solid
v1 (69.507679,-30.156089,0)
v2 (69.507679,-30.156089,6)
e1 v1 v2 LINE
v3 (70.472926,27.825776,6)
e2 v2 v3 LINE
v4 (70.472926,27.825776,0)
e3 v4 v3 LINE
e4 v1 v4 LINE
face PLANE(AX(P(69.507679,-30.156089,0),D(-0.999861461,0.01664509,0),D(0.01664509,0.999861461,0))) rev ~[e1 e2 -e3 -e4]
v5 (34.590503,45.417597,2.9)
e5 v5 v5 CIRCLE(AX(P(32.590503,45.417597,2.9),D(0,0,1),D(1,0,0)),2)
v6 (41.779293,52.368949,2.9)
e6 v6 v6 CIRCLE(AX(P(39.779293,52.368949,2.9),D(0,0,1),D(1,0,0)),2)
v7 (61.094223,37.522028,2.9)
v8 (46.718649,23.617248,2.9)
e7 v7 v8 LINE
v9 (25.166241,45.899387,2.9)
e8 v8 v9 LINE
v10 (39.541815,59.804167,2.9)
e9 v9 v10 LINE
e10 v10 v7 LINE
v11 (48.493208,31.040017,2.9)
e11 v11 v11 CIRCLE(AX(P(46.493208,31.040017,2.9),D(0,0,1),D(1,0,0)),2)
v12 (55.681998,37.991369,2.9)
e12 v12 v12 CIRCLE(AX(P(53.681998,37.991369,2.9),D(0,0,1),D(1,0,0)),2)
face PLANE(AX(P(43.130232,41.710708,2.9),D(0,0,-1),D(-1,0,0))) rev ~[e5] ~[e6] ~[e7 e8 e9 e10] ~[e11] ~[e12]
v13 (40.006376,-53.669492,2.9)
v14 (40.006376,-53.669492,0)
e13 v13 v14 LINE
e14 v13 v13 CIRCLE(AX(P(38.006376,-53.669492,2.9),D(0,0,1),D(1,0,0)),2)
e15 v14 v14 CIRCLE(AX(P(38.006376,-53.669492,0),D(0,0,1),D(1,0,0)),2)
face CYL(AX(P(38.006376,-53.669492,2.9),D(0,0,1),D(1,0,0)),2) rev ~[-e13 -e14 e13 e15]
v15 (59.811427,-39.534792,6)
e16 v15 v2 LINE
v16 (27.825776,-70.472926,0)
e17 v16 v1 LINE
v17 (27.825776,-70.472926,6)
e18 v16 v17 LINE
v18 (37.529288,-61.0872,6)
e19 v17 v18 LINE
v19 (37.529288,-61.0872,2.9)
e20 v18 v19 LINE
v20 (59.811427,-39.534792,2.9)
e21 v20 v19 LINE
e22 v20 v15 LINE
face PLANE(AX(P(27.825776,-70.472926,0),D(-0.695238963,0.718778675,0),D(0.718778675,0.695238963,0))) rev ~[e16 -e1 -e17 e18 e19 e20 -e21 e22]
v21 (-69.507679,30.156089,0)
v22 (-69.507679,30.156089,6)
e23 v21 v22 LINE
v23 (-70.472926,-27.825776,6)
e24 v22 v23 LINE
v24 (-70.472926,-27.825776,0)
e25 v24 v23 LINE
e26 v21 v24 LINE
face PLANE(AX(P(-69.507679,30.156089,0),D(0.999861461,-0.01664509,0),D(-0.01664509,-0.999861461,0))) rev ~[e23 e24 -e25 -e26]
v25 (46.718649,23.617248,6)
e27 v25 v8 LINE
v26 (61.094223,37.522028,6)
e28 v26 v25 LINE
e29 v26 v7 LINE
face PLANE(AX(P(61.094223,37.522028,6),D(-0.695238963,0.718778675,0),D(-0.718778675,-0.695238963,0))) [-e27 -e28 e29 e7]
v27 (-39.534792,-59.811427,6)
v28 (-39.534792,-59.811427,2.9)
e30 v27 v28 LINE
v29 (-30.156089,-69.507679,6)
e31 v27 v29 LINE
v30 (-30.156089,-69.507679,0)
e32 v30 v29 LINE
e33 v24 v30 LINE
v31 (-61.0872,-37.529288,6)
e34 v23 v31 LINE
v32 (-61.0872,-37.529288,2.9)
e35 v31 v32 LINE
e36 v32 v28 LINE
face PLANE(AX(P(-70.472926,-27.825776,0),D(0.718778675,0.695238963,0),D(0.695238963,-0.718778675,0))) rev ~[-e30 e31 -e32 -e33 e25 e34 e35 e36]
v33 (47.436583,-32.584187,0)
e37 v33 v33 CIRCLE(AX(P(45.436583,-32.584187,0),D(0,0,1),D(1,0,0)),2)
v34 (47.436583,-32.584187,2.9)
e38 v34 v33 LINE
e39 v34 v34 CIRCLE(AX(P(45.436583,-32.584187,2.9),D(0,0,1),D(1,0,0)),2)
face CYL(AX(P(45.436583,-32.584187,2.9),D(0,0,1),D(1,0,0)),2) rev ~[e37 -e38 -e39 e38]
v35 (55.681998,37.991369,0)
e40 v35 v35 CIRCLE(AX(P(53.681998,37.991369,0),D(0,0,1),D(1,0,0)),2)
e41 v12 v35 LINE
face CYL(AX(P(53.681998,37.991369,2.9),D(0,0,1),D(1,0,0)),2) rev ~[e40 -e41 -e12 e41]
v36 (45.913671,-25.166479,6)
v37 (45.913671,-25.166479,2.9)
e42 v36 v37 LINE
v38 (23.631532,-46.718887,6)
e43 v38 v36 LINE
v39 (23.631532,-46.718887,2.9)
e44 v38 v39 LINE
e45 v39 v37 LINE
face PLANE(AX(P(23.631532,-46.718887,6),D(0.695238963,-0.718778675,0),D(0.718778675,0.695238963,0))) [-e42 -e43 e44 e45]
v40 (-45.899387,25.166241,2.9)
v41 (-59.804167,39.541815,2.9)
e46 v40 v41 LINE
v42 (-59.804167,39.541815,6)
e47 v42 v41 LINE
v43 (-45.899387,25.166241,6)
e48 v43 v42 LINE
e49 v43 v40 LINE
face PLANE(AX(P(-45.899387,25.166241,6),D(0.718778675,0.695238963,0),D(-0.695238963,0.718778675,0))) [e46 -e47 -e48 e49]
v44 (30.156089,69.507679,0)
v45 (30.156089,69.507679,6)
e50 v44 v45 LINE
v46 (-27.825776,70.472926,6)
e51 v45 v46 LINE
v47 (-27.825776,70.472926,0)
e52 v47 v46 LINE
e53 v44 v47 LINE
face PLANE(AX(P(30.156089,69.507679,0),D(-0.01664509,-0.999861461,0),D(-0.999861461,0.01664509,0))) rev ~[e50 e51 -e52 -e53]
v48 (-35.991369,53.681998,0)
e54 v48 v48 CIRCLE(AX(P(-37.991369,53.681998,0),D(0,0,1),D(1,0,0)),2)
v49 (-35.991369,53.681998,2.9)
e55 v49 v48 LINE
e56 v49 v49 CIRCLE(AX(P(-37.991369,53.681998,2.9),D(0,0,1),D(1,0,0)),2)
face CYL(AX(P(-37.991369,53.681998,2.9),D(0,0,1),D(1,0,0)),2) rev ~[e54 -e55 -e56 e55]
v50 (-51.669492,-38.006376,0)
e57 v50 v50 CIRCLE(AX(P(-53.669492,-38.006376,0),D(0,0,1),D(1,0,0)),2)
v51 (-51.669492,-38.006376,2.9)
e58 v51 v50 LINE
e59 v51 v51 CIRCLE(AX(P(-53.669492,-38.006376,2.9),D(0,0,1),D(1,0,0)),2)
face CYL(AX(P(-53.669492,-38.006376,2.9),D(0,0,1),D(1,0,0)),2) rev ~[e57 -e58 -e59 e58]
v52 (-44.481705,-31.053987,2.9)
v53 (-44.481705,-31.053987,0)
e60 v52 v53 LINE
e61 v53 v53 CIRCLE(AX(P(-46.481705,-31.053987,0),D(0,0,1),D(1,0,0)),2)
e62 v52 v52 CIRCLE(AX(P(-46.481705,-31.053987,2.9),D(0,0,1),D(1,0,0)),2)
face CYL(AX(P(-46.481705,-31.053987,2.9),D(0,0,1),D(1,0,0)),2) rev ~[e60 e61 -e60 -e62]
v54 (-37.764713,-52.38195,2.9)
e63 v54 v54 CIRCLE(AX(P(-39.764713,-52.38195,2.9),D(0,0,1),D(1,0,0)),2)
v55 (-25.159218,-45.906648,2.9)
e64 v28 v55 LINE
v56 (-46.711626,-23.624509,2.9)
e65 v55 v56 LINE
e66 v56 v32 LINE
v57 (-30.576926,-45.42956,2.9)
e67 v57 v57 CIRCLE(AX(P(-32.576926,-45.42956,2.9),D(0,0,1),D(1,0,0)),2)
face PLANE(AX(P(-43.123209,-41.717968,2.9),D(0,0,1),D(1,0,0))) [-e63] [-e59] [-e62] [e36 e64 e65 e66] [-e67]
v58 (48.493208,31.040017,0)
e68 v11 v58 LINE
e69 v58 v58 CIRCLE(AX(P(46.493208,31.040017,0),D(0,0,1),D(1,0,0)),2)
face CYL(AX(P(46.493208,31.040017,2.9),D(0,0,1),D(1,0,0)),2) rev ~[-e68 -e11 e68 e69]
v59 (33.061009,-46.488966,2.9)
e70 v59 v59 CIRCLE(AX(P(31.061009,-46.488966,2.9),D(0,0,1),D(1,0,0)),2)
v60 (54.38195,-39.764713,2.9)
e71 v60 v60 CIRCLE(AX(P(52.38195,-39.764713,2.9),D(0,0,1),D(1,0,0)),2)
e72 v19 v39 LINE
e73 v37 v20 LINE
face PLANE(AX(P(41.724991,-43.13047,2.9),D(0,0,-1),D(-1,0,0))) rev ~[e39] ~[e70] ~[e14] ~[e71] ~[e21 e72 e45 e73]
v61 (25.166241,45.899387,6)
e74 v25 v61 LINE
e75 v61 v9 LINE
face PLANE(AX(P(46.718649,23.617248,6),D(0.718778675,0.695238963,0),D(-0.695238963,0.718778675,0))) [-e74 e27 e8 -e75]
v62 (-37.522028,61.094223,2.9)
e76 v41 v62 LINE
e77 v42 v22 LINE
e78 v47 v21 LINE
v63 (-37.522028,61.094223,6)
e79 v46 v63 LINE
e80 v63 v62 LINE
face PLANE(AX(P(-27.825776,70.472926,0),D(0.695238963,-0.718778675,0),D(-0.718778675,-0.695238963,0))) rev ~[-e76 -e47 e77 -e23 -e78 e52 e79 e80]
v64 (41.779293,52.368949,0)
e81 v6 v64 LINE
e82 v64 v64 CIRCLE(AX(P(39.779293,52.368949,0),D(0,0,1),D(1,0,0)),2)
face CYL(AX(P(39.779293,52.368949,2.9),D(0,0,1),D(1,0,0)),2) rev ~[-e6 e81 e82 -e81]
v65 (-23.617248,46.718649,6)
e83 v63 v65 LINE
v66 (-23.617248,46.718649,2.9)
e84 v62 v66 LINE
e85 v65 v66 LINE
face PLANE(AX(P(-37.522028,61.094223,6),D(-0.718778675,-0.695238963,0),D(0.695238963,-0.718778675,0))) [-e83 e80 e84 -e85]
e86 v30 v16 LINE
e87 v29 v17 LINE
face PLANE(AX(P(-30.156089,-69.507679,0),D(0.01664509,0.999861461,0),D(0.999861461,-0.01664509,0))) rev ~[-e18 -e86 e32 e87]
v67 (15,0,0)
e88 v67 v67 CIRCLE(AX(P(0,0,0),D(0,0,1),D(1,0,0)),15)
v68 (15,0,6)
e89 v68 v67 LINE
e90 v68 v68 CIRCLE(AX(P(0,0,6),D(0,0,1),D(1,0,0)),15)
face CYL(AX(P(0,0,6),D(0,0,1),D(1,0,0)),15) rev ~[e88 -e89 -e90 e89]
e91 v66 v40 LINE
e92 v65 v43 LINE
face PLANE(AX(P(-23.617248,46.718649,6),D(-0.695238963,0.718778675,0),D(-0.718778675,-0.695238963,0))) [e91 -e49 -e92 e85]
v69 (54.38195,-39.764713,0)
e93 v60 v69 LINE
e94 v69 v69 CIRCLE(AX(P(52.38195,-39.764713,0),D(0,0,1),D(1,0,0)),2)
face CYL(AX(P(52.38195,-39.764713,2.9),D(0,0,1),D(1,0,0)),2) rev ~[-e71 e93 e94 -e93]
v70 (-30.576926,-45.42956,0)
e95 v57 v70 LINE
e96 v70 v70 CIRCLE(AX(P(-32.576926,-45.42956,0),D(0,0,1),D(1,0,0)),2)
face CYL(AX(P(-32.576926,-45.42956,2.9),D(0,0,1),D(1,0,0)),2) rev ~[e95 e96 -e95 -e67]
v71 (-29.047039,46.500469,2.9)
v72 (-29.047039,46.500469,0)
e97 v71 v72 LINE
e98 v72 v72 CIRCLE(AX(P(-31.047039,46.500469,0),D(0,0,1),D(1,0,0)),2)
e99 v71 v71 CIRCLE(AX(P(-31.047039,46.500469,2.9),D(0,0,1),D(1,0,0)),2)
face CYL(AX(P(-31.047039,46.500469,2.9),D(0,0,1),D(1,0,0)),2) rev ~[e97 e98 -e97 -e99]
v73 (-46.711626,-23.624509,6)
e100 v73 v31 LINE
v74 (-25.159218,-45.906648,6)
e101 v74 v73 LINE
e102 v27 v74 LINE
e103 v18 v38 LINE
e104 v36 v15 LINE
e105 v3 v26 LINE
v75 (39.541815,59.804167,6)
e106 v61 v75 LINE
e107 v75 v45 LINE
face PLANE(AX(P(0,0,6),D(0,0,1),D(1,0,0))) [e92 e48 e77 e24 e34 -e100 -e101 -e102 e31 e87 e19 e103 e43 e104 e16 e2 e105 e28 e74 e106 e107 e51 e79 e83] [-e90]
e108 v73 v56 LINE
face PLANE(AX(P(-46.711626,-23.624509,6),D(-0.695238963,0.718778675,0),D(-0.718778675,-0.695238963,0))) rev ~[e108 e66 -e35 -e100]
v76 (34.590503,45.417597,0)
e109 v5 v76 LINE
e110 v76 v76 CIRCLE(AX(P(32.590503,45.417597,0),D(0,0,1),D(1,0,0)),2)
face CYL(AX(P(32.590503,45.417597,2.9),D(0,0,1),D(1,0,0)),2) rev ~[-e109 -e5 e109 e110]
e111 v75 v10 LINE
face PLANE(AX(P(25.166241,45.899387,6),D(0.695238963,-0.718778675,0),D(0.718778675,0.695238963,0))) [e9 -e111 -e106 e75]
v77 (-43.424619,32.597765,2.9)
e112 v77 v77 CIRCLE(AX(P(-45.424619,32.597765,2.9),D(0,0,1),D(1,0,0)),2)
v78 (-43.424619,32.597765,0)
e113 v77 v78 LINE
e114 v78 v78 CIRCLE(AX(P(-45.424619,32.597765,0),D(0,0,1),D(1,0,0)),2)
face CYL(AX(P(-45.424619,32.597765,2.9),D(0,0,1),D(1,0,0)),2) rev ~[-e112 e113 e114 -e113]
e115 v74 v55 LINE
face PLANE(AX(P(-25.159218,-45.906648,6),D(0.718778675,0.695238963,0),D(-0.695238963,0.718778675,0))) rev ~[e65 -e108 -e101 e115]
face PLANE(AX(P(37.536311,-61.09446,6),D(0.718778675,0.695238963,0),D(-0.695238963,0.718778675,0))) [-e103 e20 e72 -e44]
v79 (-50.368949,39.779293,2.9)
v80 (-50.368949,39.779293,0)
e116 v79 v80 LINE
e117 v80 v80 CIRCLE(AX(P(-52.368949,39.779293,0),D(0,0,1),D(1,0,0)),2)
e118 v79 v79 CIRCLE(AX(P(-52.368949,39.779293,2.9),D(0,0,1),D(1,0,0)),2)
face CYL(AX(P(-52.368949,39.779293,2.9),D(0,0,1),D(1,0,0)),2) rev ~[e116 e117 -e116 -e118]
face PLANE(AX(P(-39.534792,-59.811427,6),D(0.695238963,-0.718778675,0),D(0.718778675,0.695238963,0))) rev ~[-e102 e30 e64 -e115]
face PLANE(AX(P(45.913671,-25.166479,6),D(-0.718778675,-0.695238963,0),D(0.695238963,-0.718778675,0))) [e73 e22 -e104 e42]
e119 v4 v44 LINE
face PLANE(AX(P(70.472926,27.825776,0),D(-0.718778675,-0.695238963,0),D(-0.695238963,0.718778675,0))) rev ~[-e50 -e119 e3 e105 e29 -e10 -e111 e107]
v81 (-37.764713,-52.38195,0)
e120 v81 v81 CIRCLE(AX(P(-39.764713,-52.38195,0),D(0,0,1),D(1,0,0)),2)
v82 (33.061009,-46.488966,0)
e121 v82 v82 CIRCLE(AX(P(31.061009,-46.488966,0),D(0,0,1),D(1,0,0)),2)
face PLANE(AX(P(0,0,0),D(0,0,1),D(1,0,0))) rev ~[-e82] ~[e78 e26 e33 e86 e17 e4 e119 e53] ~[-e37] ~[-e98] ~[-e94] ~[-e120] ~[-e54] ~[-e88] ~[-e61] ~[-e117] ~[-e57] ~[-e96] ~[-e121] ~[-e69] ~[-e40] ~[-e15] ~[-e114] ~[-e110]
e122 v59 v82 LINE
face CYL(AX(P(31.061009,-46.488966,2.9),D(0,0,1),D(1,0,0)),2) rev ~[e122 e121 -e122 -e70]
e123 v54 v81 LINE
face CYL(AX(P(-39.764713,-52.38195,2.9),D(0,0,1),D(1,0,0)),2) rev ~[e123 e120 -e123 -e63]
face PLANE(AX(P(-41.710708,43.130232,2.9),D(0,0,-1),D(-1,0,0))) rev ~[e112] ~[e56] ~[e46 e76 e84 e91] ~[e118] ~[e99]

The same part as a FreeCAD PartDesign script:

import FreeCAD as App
import Part
import Sketcher
from FreeCAD import Vector


def add_polygon(sketch, points):
    """Adds a closed chain of lines whose ends are joined by coincident constraints."""
    first, n = sketch.GeometryCount, len(points)
    for a, b in zip(points, points[1:] + points[:1]):
        sketch.addGeometry(Part.LineSegment(App.Vector(*a, 0), App.Vector(*b, 0)), False)
    for i in range(n):
        sketch.addConstraint(Sketcher.Constraint("Coincident", first + i, 2, first + (i + 1) % n, 1))

doc = App.newDocument("Part")
params = doc.addObject("Spreadsheet::Sheet", "Params")
for row, (alias, value) in enumerate([
    ("pad1_length", "6 mm"),
    ("sketch2_length", "31 mm"),
    ("sketch2_length2", "20 mm"),
    ("pocket1_length", "3.1 mm"),
    ("sketch3_diameter", "30 mm"),
    ("sketch4_diameter", "4 mm"),
    ("pocket3_length", "3.1 mm"),
], start=1):
    params.set(f"A{row}", alias)
    params.set(f"B{row}", "=" + value)
    params.setAlias(f"B{row}", alias)

body = doc.addObject("PartDesign::Body", "Body")

# Sketch on XY plane
sketch1 = body.newObject("Sketcher::SketchObject", "Sketch")
sketch1.AttachmentSupport = (doc.getObject("XY_Plane"), [""])
sketch1.MapMode = "FlatFace"
add_polygon(sketch1, [(70, 28), (30, 70), (-28, 70), (-70, 30), (-70, -28), (-30, -70), (28, -70), (70, -30)])  # lines 0-7
sketch1.addConstraint([
    Sketcher.Constraint("Symmetric", 0, 2, 4, 2, -1, 1),
    Sketcher.Constraint("Symmetric", 1, 2, 5, 2, -1, 1),
    Sketcher.Constraint("Symmetric", 2, 2, 6, 2, -1, 1),
    Sketcher.Constraint("Symmetric", 3, 2, 7, 2, -1, 1),
    Sketcher.Constraint("Perpendicular", 0, 2),
    Sketcher.Constraint("Perpendicular", 1, 3),
    Sketcher.Constraint("Equal", 0, 1),
    Sketcher.Constraint("Equal", 1, 2),
    Sketcher.Constraint("Equal", 2, 3),
    Sketcher.Constraint("Distance", 0, 57.989899),
    Sketcher.Constraint("DistanceY", 3, 2, 1, 2, 98.298702),
    Sketcher.Constraint("DistanceX", -1, 1, 0, 2, 30.156089),
])
pad1 = body.newObject("PartDesign::Pad", "Pad")
pad1.Profile = sketch1
pad1.setExpression("Length", "Params.pad1_length")

# Sketch on XY plane
sketch2 = body.newObject("Sketcher::SketchObject", "Sketch001")
sketch2.AttachmentSupport = (doc.getObject("XY_Plane"), [""])
sketch2.MapMode = "FlatFace"
sketch2.AttachmentOffset = App.Placement(Vector(0, 0, 6), App.Rotation())
add_polygon(sketch2, [(-61, -38), (-40, -60), (-25, -46), (-47, -24)])  # lines 0-3
add_polygon(sketch2, [(25, 46), (47, 24), (61, 38), (40, 60)])  # lines 4-7
add_polygon(sketch2, [(-38, 61), (-60, 40), (-46, 25), (-24, 47)])  # lines 8-11
add_polygon(sketch2, [(46, -25), (24, -47), (38, -61), (60, -40)])  # lines 12-15
sketch2.addConstraint([
    Sketcher.Constraint("Perpendicular", 0, 1),
    Sketcher.Constraint("Perpendicular", 1, 2),
    Sketcher.Constraint("Perpendicular", 2, 3),
    Sketcher.Constraint("Perpendicular", 3, 4),
    Sketcher.Constraint("Perpendicular", 4, 5),
    Sketcher.Constraint("Perpendicular", 5, 6),
    Sketcher.Constraint("Perpendicular", 6, 7),
    Sketcher.Constraint("Parallel", 7, 8),
    Sketcher.Constraint("Perpendicular", 8, 9),
    Sketcher.Constraint("Perpendicular", 9, 10),
    Sketcher.Constraint("Perpendicular", 10, 11),
    Sketcher.Constraint("Perpendicular", 11, 12),
    Sketcher.Constraint("Perpendicular", 12, 13),
    Sketcher.Constraint("Perpendicular", 13, 14),
    Sketcher.Constraint("Perpendicular", 14, 15),
    Sketcher.Constraint("Equal", 2, 4),
    Sketcher.Constraint("Equal", 3, 5),
    Sketcher.Constraint("Equal", 6, 8),
    Sketcher.Constraint("Equal", 7, 9),
    Sketcher.Constraint("Equal", 10, 12),
    Sketcher.Constraint("Equal", 11, 13),
    Sketcher.Constraint("Distance", 0, 31.0),
    Sketcher.Constraint("Distance", 1, 20.0),
    Sketcher.Constraint("DistanceX", 3, 2, -1, 1, 61.0872),
    Sketcher.Constraint("DistanceY", 4, 2, 10, 2, 23.101401),
    Sketcher.Constraint("DistanceY", 12, 2, 3, 2, 9.189599),
    Sketcher.Constraint("DistanceX", 4, 2, 14, 2, 13.099801),
    Sketcher.Constraint("DistanceY", 14, 2, 4, 2, 63.159301),
    Sketcher.Constraint("DistanceX", 0, 2, -1, 1, 39.534792),
    Sketcher.Constraint("DistanceY", 2, 2, -1, 1, 23.624509),
    Sketcher.Constraint("DistanceX", -1, 1, 4, 2, 46.718649),
    Sketcher.Constraint("DistanceX", 10, 2, -1, 1, 23.617248),
])
sketch2.setExpression("Constraints[37]", "Params.sketch2_length")
sketch2.setExpression("Constraints[38]", "Params.sketch2_length2")
pocket1 = body.newObject("PartDesign::Pocket", "Pocket")
pocket1.Profile = sketch2
pocket1.setExpression("Length", "Params.pocket1_length")

# Sketch on XY plane
sketch3 = body.newObject("Sketcher::SketchObject", "Sketch002")
sketch3.AttachmentSupport = (doc.getObject("XY_Plane"), [""])
sketch3.MapMode = "FlatFace"
sketch3.AttachmentOffset = App.Placement(Vector(0, 0, 6), App.Rotation())
sketch3.addGeometry(Part.Circle(Vector(0, 0, 0), Vector(0, 0, 1), 15), False)
sketch3.addConstraint([
    Sketcher.Constraint("Coincident", 0, 3, -1, 1),
    Sketcher.Constraint("Diameter", 0, 30.0),
])
sketch3.setExpression("Constraints[1]", "Params.sketch3_diameter")
pocket2 = body.newObject("PartDesign::Pocket", "Pocket001")
pocket2.Profile = sketch3
pocket2.Type = "ThroughAll"

# Sketch on XY plane
sketch4 = body.newObject("Sketcher::SketchObject", "Sketch003")
sketch4.AttachmentSupport = (doc.getObject("XY_Plane"), [""])
sketch4.MapMode = "FlatFace"
sketch4.AttachmentOffset = App.Placement(Vector(0, 0, 2.9), App.Rotation())
sketch4.addGeometry([
    Part.Circle(Vector(-46.5, -31.1, 0), Vector(0, 0, 1), 2),  # 0
    Part.Circle(Vector(-53.7, -38, 0), Vector(0, 0, 1), 2),  # 1
    Part.Circle(Vector(-39.8, -52.4, 0), Vector(0, 0, 1), 2),  # 2
    Part.Circle(Vector(-32.6, -45.4, 0), Vector(0, 0, 1), 2),  # 3
    Part.Circle(Vector(39.8, 52.4, 0), Vector(0, 0, 1), 2),  # 4
    Part.Circle(Vector(32.6, 45.4, 0), Vector(0, 0, 1), 2),  # 5
    Part.Circle(Vector(53.7, 38, 0), Vector(0, 0, 1), 2),  # 6
    Part.Circle(Vector(46.5, 31, 0), Vector(0, 0, 1), 2),  # 7
    Part.Circle(Vector(38, -53.7, 0), Vector(0, 0, 1), 2),  # 8
    Part.Circle(Vector(31.1, -46.5, 0), Vector(0, 0, 1), 2),  # 9
    Part.Circle(Vector(52.4, -39.8, 0), Vector(0, 0, 1), 2),  # 10
    Part.Circle(Vector(45.4, -32.6, 0), Vector(0, 0, 1), 2),  # 11
    Part.Circle(Vector(-38, 53.7, 0), Vector(0, 0, 1), 2),  # 12
    Part.Circle(Vector(-31, 46.5, 0), Vector(0, 0, 1), 2),  # 13
    Part.Circle(Vector(-45.4, 32.6, 0), Vector(0, 0, 1), 2),  # 14
    Part.Circle(Vector(-52.4, 39.8, 0), Vector(0, 0, 1), 2),  # 15
], False)
sketch4.addConstraint([
    Sketcher.Constraint("Equal", 0, 1),
    Sketcher.Constraint("Equal", 1, 2),
    Sketcher.Constraint("Equal", 2, 3),
    Sketcher.Constraint("Equal", 3, 4),
    Sketcher.Constraint("Equal", 4, 5),
    Sketcher.Constraint("Equal", 5, 6),
    Sketcher.Constraint("Equal", 6, 7),
    Sketcher.Constraint("Equal", 7, 8),
    Sketcher.Constraint("Equal", 8, 9),
    Sketcher.Constraint("Equal", 9, 10),
    Sketcher.Constraint("Equal", 10, 11),
    Sketcher.Constraint("Equal", 11, 12),
    Sketcher.Constraint("Equal", 12, 13),
    Sketcher.Constraint("Equal", 13, 14),
    Sketcher.Constraint("Equal", 14, 15),
    Sketcher.Constraint("Diameter", 0, 4.0),
    Sketcher.Constraint("DistanceX", 0, 3, 4, 3, 86.260998),
    Sketcher.Constraint("DistanceY", 2, 3, 4, 3, 104.750899),
    Sketcher.Constraint("DistanceX", 9, 3, 7, 3, 15.432199),
    Sketcher.Constraint("DistanceY", 5, 3, 12, 3, 8.264401),
    Sketcher.Constraint("DistanceY", 2, 3, -1, 1, 52.38195),
    Sketcher.Constraint("DistanceY", 3, 3, -1, 1, 45.42956),
    Sketcher.Constraint("DistanceY", -1, 1, 6, 3, 37.991369),
    Sketcher.Constraint("DistanceX", -1, 1, 9, 3, 31.061009),
    Sketcher.Constraint("DistanceX", -1, 1, 10, 3, 52.38195),
    Sketcher.Constraint("DistanceX", 12, 3, -1, 1, 37.991369),
    Sketcher.Constraint("DistanceX", 13, 3, -1, 1, 31.047039),
    Sketcher.Constraint("DistanceY", -1, 1, 13, 3, 46.500469),
    Sketcher.Constraint("DistanceX", 14, 3, -1, 1, 45.424619),
    Sketcher.Constraint("DistanceX", 15, 3, -1, 1, 52.368949),
    Sketcher.Constraint("DistanceY", 1, 3, 0, 3, 6.95239),
    Sketcher.Constraint("DistanceX", 1, 3, 2, 3, 13.904779),
    Sketcher.Constraint("DistanceX", 0, 3, 3, 3, 13.904779),
    Sketcher.Constraint("DistanceX", 5, 3, 4, 3, 7.18879),
    Sketcher.Constraint("DistanceX", 2, 3, 6, 3, 93.446711),
    Sketcher.Constraint("DistanceX", 7, 3, 6, 3, 7.18879),
    Sketcher.Constraint("DistanceY", 7, 3, 5, 3, 14.37758),
    Sketcher.Constraint("DistanceX", 2, 3, 8, 3, 77.771089),
    Sketcher.Constraint("DistanceY", 8, 3, 7, 3, 84.709509),
    Sketcher.Constraint("DistanceX", 0, 3, 8, 3, 84.488082),
    Sketcher.Constraint("DistanceY", 8, 3, 6, 3, 91.660862),
    Sketcher.Constraint("DistanceY", 9, 3, 0, 3, 15.434979),
    Sketcher.Constraint("DistanceY", 8, 3, 10, 3, 13.904779),
    Sketcher.Constraint("DistanceY", 9, 3, 11, 3, 13.904779),
    Sketcher.Constraint("DistanceY", 0, 3, 14, 3, 63.651751),
    Sketcher.Constraint("DistanceY", 14, 3, 15, 3, 7.181528),
    Sketcher.Constraint("DistanceY", 0, 3, -1, 1, 31.053987),
    Sketcher.Constraint("DistanceX", -1, 1, 11, 3, 45.436583),
])
sketch4.setExpression("Constraints[15]", "Params.sketch4_diameter")
pocket3 = body.newObject("PartDesign::Pocket", "Pocket002")
pocket3.Profile = sketch4
pocket3.setExpression("Length", "Params.pocket3_length")

doc.recompute()
